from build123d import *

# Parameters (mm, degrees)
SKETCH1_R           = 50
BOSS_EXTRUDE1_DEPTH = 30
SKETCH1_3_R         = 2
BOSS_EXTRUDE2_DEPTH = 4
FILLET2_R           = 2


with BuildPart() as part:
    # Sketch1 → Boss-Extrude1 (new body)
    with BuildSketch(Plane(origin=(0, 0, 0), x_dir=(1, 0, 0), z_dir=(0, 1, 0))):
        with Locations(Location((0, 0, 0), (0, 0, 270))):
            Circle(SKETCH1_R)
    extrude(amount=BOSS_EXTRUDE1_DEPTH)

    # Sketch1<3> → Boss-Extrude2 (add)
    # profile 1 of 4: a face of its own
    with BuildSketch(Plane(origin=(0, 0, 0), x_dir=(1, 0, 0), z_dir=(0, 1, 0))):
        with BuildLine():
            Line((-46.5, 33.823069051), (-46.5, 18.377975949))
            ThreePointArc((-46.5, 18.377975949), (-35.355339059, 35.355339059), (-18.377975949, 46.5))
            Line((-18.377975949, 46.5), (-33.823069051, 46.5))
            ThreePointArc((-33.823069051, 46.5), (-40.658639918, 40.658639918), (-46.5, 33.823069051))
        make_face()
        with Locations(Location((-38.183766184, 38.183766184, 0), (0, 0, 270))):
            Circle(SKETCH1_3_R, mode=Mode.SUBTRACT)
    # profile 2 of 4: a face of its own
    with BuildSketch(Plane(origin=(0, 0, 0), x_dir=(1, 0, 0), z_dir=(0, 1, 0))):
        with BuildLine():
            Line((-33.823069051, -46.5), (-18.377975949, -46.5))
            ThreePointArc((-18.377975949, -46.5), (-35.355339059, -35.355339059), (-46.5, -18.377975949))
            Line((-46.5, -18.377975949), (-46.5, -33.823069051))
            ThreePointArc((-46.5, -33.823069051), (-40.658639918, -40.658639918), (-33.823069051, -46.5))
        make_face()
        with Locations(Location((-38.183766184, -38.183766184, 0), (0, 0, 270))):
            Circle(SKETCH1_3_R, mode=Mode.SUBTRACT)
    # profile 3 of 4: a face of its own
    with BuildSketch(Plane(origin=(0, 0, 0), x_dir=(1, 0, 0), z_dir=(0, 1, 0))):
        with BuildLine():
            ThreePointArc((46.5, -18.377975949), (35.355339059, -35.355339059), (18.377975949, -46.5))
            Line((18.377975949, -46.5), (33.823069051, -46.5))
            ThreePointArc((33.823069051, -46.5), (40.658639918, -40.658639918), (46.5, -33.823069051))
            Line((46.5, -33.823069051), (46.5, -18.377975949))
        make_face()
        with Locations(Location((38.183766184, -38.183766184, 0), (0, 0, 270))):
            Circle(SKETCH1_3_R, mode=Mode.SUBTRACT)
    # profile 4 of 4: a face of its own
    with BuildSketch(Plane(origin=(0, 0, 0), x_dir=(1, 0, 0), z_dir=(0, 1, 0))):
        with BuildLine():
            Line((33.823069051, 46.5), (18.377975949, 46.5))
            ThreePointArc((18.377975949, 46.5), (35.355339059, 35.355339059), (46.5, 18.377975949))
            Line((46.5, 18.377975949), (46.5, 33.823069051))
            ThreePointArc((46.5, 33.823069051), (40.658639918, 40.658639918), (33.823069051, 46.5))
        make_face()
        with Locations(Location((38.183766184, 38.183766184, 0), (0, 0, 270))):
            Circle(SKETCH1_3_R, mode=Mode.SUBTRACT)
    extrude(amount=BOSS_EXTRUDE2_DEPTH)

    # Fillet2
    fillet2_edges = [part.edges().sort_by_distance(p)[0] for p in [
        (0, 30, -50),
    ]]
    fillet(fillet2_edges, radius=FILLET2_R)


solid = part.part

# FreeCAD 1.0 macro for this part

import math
import FreeCAD as App
import Part
import Sketcher
from FreeCAD import Vector
Q = App.Units.Quantity


def edges_at(feature, points):
    """Names of the edges that pass closest to the given points."""
    edges = feature.Shape.Edges
    near = lambda p: min(range(len(edges)), key=lambda i: edges[i].distToShape(Part.Vertex(*p))[0])
    return sorted({f"Edge{near(p) + 1}" for p in points})

doc = App.newDocument("Part")
body = doc.addObject("PartDesign::Body", "Body")

# Sketch on XZ plane
sketch1 = body.newObject("Sketcher::SketchObject", "Sketch")
sketch1.AttachmentSupport = (doc.getObject("XZ_Plane"), [""])
sketch1.MapMode = "FlatFace"
sketch1.addGeometry(Part.Circle(Vector(0, 0, 0), Vector(0, 0, 1), 50), False)
sketch1.addConstraint(Sketcher.Constraint("Coincident", 0, 3, -1, 1))
sketch1.addConstraint(Sketcher.Constraint("Diameter", 0, Q("100 mm")))
pad1 = body.newObject("PartDesign::Pad", "Pad")
pad1.Profile = sketch1
pad1.Length = 30
pad1.Reversed = True

# Sketch on XZ plane
sketch2 = body.newObject("Sketcher::SketchObject", "Sketch001")
sketch2.AttachmentSupport = (doc.getObject("XZ_Plane"), [""])
sketch2.MapMode = "FlatFace"
sketch2.addGeometry(Part.LineSegment(Vector(-46.5, -33.823069, 0), Vector(-46.5, -18.377976, 0)), False)
sketch2.addGeometry(Part.ArcOfCircle(Part.Circle(Vector(0, 0, 0), Vector(0, 0, 1), 50), math.radians(-158.434815), math.radians(-111.565185)), False)
sketch2.addGeometry(Part.LineSegment(Vector(-18.377976, -46.5, 0), Vector(-33.823069, -46.5, 0)), False)
sketch2.addGeometry(Part.ArcOfCircle(Part.Circle(Vector(0, 0, 0), Vector(0, 0, 1), 57.5), math.radians(-143.968688), math.radians(-126.031312)), False)
sketch2.addGeometry(Part.Circle(Vector(-38.183766, -38.183766, 0), Vector(0, 0, 1), 2), False)
sketch2.addGeometry(Part.LineSegment(Vector(-33.823069, 46.5, 0), Vector(-18.377976, 46.5, 0)), False)
sketch2.addGeometry(Part.ArcOfCircle(Part.Circle(Vector(0, 0, 0), Vector(0, 0, 1), 50), math.radians(111.565185), math.radians(158.434815)), False)
sketch2.addGeometry(Part.LineSegment(Vector(-46.5, 18.377976, 0), Vector(-46.5, 33.823069, 0)), False)
sketch2.addGeometry(Part.ArcOfCircle(Part.Circle(Vector(0, 0, 0), Vector(0, 0, 1), 57.5), math.radians(126.031312), math.radians(143.968688)), False)
sketch2.addGeometry(Part.Circle(Vector(-38.183766, 38.183766, 0), Vector(0, 0, 1), 2), False)
sketch2.addGeometry(Part.ArcOfCircle(Part.Circle(Vector(0, 0, 0), Vector(0, 0, 1), 50), math.radians(21.565185), math.radians(68.434815)), False)
sketch2.addGeometry(Part.LineSegment(Vector(18.377976, 46.5, 0), Vector(33.823069, 46.5, 0)), False)
sketch2.addGeometry(Part.ArcOfCircle(Part.Circle(Vector(0, 0, 0), Vector(0, 0, 1), 57.5), math.radians(36.031312), math.radians(53.968688)), False)
sketch2.addGeometry(Part.LineSegment(Vector(46.5, 33.823069, 0), Vector(46.5, 18.377976, 0)), False)
sketch2.addGeometry(Part.Circle(Vector(38.183766, 38.183766, 0), Vector(0, 0, 1), 2), False)
sketch2.addGeometry(Part.LineSegment(Vector(33.823069, -46.5, 0), Vector(18.377976, -46.5, 0)), False)
sketch2.addGeometry(Part.ArcOfCircle(Part.Circle(Vector(0, 0, 0), Vector(0, 0, 1), 50), math.radians(-68.434815), math.radians(-21.565185)), False)
sketch2.addGeometry(Part.LineSegment(Vector(46.5, -18.377976, 0), Vector(46.5, -33.823069, 0)), False)
sketch2.addGeometry(Part.ArcOfCircle(Part.Circle(Vector(0, 0, 0), Vector(0, 0, 1), 57.5), math.radians(-53.968688), math.radians(-36.031312)), False)
sketch2.addGeometry(Part.Circle(Vector(38.183766, -38.183766, 0), Vector(0, 0, 1), 2), False)
sketch2.addConstraint(Sketcher.Constraint("Coincident", 0, 2, 1, 1))
sketch2.addConstraint(Sketcher.Constraint("Coincident", 1, 2, 2, 1))
sketch2.addConstraint(Sketcher.Constraint("Coincident", 2, 2, 3, 2))
sketch2.addConstraint(Sketcher.Constraint("Coincident", 3, 1, 0, 1))
sketch2.addConstraint(Sketcher.Constraint("Coincident", 5, 2, 6, 1))
sketch2.addConstraint(Sketcher.Constraint("Coincident", 6, 2, 7, 1))
sketch2.addConstraint(Sketcher.Constraint("Coincident", 7, 2, 8, 2))
sketch2.addConstraint(Sketcher.Constraint("Coincident", 8, 1, 5, 1))
sketch2.addConstraint(Sketcher.Constraint("Coincident", 10, 2, 11, 1))
sketch2.addConstraint(Sketcher.Constraint("Coincident", 11, 2, 12, 2))
sketch2.addConstraint(Sketcher.Constraint("Coincident", 12, 1, 13, 1))
sketch2.addConstraint(Sketcher.Constraint("Coincident", 13, 2, 10, 1))
sketch2.addConstraint(Sketcher.Constraint("Coincident", 15, 2, 16, 1))
sketch2.addConstraint(Sketcher.Constraint("Coincident", 16, 2, 17, 1))
sketch2.addConstraint(Sketcher.Constraint("Coincident", 17, 2, 18, 2))
sketch2.addConstraint(Sketcher.Constraint("Coincident", 18, 1, 15, 1))
sketch2.addConstraint(Sketcher.Constraint("Vertical", 0))
sketch2.addConstraint(Sketcher.Constraint("Horizontal", 2))
sketch2.addConstraint(Sketcher.Constraint("Horizontal", 5))
sketch2.addConstraint(Sketcher.Constraint("Vertical", 7))
sketch2.addConstraint(Sketcher.Constraint("Horizontal", 11))
sketch2.addConstraint(Sketcher.Constraint("Vertical", 13))
sketch2.addConstraint(Sketcher.Constraint("Horizontal", 15))
sketch2.addConstraint(Sketcher.Constraint("Vertical", 17))
sketch2.addConstraint(Sketcher.Constraint("Coincident", 1, 3, -1, 1))
sketch2.addConstraint(Sketcher.Constraint("Coincident", 3, 3, -1, 1))
sketch2.addConstraint(Sketcher.Constraint("Coincident", 6, 3, -1, 1))
sketch2.addConstraint(Sketcher.Constraint("Coincident", 8, 3, -1, 1))
sketch2.addConstraint(Sketcher.Constraint("Coincident", 10, 3, -1, 1))
sketch2.addConstraint(Sketcher.Constraint("Coincident", 12, 3, -1, 1))
sketch2.addConstraint(Sketcher.Constraint("Coincident", 16, 3, -1, 1))
sketch2.addConstraint(Sketcher.Constraint("Coincident", 18, 3, -1, 1))
sketch2.addConstraint(Sketcher.Constraint("Equal", 1, 6))
sketch2.addConstraint(Sketcher.Constraint("Equal", 3, 8))
sketch2.addConstraint(Sketcher.Constraint("Equal", 4, 9))
sketch2.addConstraint(Sketcher.Constraint("Equal", 6, 10))
sketch2.addConstraint(Sketcher.Constraint("Equal", 8, 12))
sketch2.addConstraint(Sketcher.Constraint("Equal", 9, 14))
sketch2.addConstraint(Sketcher.Constraint("Equal", 10, 16))
sketch2.addConstraint(Sketcher.Constraint("Equal", 12, 18))
sketch2.addConstraint(Sketcher.Constraint("Equal", 14, 19))
sketch2.addConstraint(Sketcher.Constraint("Symmetric", 4, 3, 14, 3, -1, 1))
sketch2.addConstraint(Sketcher.Constraint("Symmetric", 9, 3, 19, 3, -1, 1))
sketch2.addConstraint(Sketcher.Constraint("Symmetric", 9, 3, 14, 3, -2))
sketch2.addConstraint(Sketcher.Constraint("Horizontal", 8, 1, 10, 2))
sketch2.addConstraint(Sketcher.Constraint("Horizontal", 7, 2, 12, 1))
sketch2.addConstraint(Sketcher.Constraint("Horizontal", 2, 2, 15, 2))
sketch2.addConstraint(Sketcher.Constraint("Horizontal", 0, 2, 16, 2))
sketch2.addConstraint(Sketcher.Constraint("Vertical", 1, 2, 5, 2))
sketch2.addConstraint(Sketcher.Constraint("Vertical", 3, 1, 6, 2))
sketch2.addConstraint(Sketcher.Constraint("Equal", 15, 0))
sketch2.addConstraint(Sketcher.Constraint("Diameter", 4, Q("4 mm")))
sketch2.addConstraint(Sketcher.Constraint("Radius", 1, Q("50 mm")))
sketch2.addConstraint(Sketcher.Constraint("Radius", 3, Q("57.5 mm")))
sketch2.addConstraint(Sketcher.Constraint("DistanceX", 0, 2, -1, 1, Q("46.5 mm")))
sketch2.addConstraint(Sketcher.Constraint("DistanceY", 4, 3, 0, 2, Q("19.80579 mm")))
sketch2.addConstraint(Sketcher.Constraint("DistanceX", 4, 3, 1, 2, Q("19.80579 mm")))
pad2 = body.newObject("PartDesign::Pad", "Pad001")
pad2.Profile = sketch2
pad2.Length = 4
pad2.Reversed = True
doc.recompute()

fillet = body.newObject("PartDesign::Fillet", "Fillet")
fillet.Base = (pad2, edges_at(pad2, [(0, 30, -50)]))
fillet.Radius = 2

doc.recompute()
